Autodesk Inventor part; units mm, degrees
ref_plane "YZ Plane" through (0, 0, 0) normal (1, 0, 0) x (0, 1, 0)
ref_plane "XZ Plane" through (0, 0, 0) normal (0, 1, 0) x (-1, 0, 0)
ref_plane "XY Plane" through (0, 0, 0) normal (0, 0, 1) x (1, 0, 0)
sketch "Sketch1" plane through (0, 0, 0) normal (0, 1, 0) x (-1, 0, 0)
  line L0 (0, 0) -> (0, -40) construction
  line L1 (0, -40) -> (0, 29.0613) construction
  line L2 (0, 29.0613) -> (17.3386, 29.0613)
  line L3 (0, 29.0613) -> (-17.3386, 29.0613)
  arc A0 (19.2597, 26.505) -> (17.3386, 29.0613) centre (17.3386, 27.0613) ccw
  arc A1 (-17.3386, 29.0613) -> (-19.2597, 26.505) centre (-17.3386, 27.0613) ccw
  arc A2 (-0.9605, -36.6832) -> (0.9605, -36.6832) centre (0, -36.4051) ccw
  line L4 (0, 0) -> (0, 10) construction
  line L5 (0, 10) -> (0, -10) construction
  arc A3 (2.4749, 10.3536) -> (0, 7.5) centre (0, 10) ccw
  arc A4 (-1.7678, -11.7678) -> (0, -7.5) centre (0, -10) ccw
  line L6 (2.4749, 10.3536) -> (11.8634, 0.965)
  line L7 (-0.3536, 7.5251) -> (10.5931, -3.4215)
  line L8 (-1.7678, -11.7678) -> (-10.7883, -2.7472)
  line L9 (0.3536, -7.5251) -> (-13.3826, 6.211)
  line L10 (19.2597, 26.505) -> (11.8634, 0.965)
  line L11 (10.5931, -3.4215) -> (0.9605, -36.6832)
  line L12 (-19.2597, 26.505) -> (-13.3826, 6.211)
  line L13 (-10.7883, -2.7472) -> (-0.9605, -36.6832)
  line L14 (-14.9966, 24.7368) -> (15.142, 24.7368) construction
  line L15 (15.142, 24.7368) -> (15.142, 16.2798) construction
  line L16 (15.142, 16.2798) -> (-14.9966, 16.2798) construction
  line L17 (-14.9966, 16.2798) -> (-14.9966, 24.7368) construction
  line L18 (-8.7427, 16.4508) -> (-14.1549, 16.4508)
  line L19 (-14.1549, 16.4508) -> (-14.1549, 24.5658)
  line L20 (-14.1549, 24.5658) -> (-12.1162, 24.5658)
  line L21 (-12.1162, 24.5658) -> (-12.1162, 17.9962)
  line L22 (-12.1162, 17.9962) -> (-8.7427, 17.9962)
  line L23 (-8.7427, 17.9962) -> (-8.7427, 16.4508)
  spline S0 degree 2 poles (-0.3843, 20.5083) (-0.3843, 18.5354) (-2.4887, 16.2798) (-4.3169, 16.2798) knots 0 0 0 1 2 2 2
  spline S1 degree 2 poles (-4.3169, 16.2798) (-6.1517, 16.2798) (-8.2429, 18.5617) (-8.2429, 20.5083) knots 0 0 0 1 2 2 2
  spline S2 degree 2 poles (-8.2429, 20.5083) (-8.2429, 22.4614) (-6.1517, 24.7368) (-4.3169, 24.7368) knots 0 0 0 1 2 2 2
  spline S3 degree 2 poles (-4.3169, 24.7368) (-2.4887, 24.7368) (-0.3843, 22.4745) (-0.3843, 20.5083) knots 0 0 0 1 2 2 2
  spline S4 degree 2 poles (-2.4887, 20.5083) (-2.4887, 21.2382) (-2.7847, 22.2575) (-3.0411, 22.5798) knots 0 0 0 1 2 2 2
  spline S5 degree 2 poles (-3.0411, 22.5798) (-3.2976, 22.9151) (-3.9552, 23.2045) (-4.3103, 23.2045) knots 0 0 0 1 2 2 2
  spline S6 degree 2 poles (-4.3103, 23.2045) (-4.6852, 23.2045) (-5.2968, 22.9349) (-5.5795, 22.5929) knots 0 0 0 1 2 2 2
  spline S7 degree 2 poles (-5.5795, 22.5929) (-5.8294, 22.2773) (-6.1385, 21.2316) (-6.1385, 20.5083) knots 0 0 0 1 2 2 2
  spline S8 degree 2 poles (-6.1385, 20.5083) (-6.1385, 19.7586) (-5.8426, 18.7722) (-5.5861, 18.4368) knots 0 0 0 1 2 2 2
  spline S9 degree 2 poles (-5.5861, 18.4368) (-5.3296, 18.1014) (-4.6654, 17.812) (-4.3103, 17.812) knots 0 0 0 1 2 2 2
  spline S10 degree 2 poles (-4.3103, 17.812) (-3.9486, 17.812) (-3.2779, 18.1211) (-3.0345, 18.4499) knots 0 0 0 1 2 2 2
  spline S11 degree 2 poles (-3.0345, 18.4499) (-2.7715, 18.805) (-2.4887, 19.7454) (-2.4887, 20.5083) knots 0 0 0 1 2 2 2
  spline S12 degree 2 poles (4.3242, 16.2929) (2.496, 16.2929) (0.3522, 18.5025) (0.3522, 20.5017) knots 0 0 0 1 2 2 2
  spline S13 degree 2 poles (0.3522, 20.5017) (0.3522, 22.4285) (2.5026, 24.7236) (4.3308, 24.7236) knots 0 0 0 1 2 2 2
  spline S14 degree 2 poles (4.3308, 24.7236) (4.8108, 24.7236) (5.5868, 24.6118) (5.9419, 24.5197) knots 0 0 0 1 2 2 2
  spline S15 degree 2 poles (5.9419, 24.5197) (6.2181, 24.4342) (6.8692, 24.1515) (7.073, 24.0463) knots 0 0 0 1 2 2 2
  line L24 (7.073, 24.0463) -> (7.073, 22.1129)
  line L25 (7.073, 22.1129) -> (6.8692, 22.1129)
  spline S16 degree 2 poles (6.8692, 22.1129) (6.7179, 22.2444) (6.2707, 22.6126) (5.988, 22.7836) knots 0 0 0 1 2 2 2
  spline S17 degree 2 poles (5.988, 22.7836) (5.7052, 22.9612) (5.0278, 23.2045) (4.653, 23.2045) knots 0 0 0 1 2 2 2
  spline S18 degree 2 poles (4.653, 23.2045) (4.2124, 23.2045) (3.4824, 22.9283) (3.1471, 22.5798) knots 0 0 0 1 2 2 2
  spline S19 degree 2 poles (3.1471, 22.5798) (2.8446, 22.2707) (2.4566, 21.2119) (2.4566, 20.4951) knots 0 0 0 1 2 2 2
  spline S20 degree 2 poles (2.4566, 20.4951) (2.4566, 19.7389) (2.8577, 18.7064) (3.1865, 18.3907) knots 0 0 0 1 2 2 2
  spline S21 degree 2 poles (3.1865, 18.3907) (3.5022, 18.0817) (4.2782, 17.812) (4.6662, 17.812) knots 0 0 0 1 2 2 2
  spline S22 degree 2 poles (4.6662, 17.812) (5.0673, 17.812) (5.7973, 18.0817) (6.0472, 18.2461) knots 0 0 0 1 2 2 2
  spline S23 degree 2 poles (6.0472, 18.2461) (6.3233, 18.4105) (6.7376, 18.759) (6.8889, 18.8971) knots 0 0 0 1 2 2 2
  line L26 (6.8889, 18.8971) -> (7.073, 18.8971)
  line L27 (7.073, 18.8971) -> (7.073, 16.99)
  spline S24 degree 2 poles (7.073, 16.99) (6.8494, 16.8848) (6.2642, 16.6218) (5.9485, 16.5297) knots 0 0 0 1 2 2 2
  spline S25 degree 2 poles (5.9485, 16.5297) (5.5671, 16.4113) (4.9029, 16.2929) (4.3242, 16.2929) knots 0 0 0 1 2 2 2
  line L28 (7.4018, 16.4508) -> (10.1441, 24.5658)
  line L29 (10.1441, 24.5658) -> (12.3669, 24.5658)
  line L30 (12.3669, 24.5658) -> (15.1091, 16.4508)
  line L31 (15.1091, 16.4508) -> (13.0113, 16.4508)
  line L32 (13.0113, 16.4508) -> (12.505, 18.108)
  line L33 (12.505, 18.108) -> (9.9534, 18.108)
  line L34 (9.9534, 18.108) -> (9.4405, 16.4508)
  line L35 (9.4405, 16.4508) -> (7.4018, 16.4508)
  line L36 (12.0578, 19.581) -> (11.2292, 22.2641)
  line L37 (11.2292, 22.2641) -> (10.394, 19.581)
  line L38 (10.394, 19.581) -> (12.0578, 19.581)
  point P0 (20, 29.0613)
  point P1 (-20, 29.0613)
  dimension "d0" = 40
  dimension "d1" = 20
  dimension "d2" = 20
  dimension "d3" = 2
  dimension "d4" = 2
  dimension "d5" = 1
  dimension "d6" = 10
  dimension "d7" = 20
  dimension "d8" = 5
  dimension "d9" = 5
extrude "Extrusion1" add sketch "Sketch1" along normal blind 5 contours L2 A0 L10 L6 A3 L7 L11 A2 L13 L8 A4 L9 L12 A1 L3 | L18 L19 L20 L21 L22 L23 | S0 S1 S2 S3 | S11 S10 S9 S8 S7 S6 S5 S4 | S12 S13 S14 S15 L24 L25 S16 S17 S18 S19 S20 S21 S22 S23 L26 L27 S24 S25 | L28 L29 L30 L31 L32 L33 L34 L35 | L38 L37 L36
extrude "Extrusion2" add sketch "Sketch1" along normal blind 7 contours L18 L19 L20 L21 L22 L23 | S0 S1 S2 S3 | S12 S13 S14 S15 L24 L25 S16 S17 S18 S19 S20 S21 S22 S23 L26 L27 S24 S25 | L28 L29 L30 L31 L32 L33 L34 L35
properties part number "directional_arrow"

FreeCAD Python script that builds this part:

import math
import FreeCAD as App
import Part
import Sketcher
Q = App.Units.Quantity


def add_polygon(sketch, points):
    """Adds a closed chain of lines whose ends are joined by coincident constraints."""
    first, n = sketch.GeometryCount, len(points)
    for a, b in zip(points, points[1:] + points[:1]):
        sketch.addGeometry(Part.LineSegment(App.Vector(*a, 0), App.Vector(*b, 0)), False)
    for i in range(n):
        sketch.addConstraint(Sketcher.Constraint("Coincident", first + i, 2, first + (i + 1) % n, 1))

doc = App.newDocument("Part")
params = doc.addObject("Spreadsheet::Sheet", "Params")
for row, (alias, value) in enumerate([
    ("sketch1_radius", "2 mm"),
    ("sketch1_radius2", "1 mm"),
    ("sketch1_radius3", "2.5 mm"),
    ("pad1_length", "5 mm"),
    ("sketch2_length", "2.81 mm"),
    ("pad2_length", "7 mm"),
], start=1):
    params.set(f"A{row}", alias)
    params.set(f"B{row}", "=" + value)
    params.setAlias(f"B{row}", alias)

body = doc.addObject("PartDesign::Body", "Body")

# Sketch on XZ plane
sketch1 = doc.addObject("Sketcher::SketchObject", "Sketch")
body.addObject(sketch1)
sketch1.AttachmentSupport = (doc.XZ_Plane, [""])
sketch1.MapMode = "FlatFace"
sketch1.addGeometry(Part.LineSegment(App.Vector(-17.3386, 29.0613, 0), App.Vector(17.3386, 29.0613, 0)), False)
sketch1.addGeometry(Part.ArcOfCircle(Part.Circle(App.Vector(17.3386, 27.0613, 0), App.Vector(0, 0, 1), 2), math.radians(-16.149625), math.radians(90)), False)
sketch1.addGeometry(Part.LineSegment(App.Vector(19.2597, 26.505, 0), App.Vector(13.3826, 6.211, 0)), False)
sketch1.addGeometry(Part.LineSegment(App.Vector(13.3826, 6.211, 0), App.Vector(-0.3536, -7.5251, 0)), False)
sketch1.addGeometry(Part.ArcOfCircle(Part.Circle(App.Vector(0, -10, 0), App.Vector(0, 0, 1), 2.500047), math.radians(98.131075), math.radians(315)), False)
sketch1.addGeometry(Part.LineSegment(App.Vector(1.7678, -11.7678, 0), App.Vector(10.7883, -2.7472, 0)), False)
sketch1.addGeometry(Part.LineSegment(App.Vector(10.7883, -2.7472, 0), App.Vector(0.9605, -36.6832, 0)), False)
sketch1.addGeometry(Part.ArcOfCircle(Part.Circle(App.Vector(0, -36.4051, 0), App.Vector(0, 0, 1), 0.99995), math.radians(-163.85233), math.radians(-16.14767)), False)
sketch1.addGeometry(Part.LineSegment(App.Vector(-0.9605, -36.6832, 0), App.Vector(-10.5931, -3.4215, 0)), False)
sketch1.addGeometry(Part.LineSegment(App.Vector(-10.5931, -3.4215, 0), App.Vector(0.3536, 7.5251, 0)), False)
sketch1.addGeometry(Part.ArcOfCircle(Part.Circle(App.Vector(0, 10, 0), App.Vector(0, 0, 1), 2.500033), math.radians(-81.868925), math.radians(171.868925)), False)
sketch1.addGeometry(Part.LineSegment(App.Vector(-2.4749, 10.3536, 0), App.Vector(-11.8634, 0.965, 0)), False)
sketch1.addGeometry(Part.LineSegment(App.Vector(-11.8634, 0.965, 0), App.Vector(-19.2597, 26.505, 0)), False)
sketch1.addGeometry(Part.ArcOfCircle(Part.Circle(App.Vector(-17.3386, 27.0613, 0), App.Vector(0, 0, 1), 2.000024), math.radians(90), math.radians(196.149625)), False)
sketch1.addConstraint(Sketcher.Constraint("Tangent", 0, 2, 1, 2))
sketch1.addConstraint(Sketcher.Constraint("Tangent", 1, 1, 2, 1))
sketch1.addConstraint(Sketcher.Constraint("Coincident", 2, 2, 3, 1))
sketch1.addConstraint(Sketcher.Constraint("Coincident", 3, 2, 4, 1))
sketch1.addConstraint(Sketcher.Constraint("Tangent", 4, 2, 5, 1))
sketch1.addConstraint(Sketcher.Constraint("Coincident", 5, 2, 6, 1))
sketch1.addConstraint(Sketcher.Constraint("Tangent", 6, 2, 7, 2))
sketch1.addConstraint(Sketcher.Constraint("Tangent", 7, 1, 8, 1))
sketch1.addConstraint(Sketcher.Constraint("Coincident", 8, 2, 9, 1))
sketch1.addConstraint(Sketcher.Constraint("Coincident", 9, 2, 10, 1))
sketch1.addConstraint(Sketcher.Constraint("Coincident", 10, 2, 11, 1))
sketch1.addConstraint(Sketcher.Constraint("Coincident", 11, 2, 12, 1))
sketch1.addConstraint(Sketcher.Constraint("Tangent", 12, 2, 13, 2))
sketch1.addConstraint(Sketcher.Constraint("Tangent", 13, 1, 0, 1))
sketch1.addConstraint(Sketcher.Constraint("Horizontal", 0))
sketch1.addConstraint(Sketcher.Constraint("Equal", 4, 10))
sketch1.addConstraint(Sketcher.Constraint("Equal", 1, 13))
sketch1.addConstraint(Sketcher.Constraint("Symmetric", 4, 3, 10, 3, -1, 1))
sketch1.addConstraint(Sketcher.Constraint("Symmetric", 6, 2, 7, 1, -2))
sketch1.addConstraint(Sketcher.Constraint("Symmetric", 1, 1, 12, 2, -2))
sketch1.addConstraint(Sketcher.Constraint("PointOnObject", 4, 3, -2))
sketch1.addConstraint(Sketcher.Constraint("Parallel", 3, 5))
sketch1.addConstraint(Sketcher.Constraint("Parallel", 2, 6))
sketch1.addConstraint(Sketcher.Constraint("Parallel", 5, 9))
sketch1.addConstraint(Sketcher.Constraint("Parallel", 9, 11))
sketch1.addConstraint(Sketcher.Constraint("Radius", 1, Q("2 mm")))
sketch1.addConstraint(Sketcher.Constraint("Radius", 7, Q("1 mm")))
sketch1.addConstraint(Sketcher.Constraint("Radius", 4, Q("2.5 mm")))
sketch1.addConstraint(Sketcher.Constraint("DistanceY", 4, 3, -1, 1, Q("10 mm")))
sketch1.addConstraint(Sketcher.Constraint("Angle", 3, Q("-135.0002 deg")))
sketch1.addConstraint(Sketcher.Constraint("Angle", 2, Q("-106.151 deg")))
sketch1.addConstraint(Sketcher.Constraint("DistanceY", 7, 3, 3, 2, Q("28.88 mm")))
sketch1.addConstraint(Sketcher.Constraint("DistanceY", 11, 2, 9, 2, Q("6.56 mm")))
sketch1.addConstraint(Sketcher.Constraint("DistanceY", 3, 2, 11, 2, Q("8.49 mm")))
sketch1.addConstraint(Sketcher.Constraint("DistanceY", 11, 2, 12, 2, Q("25.54 mm")))
sketch1.addConstraint(Sketcher.Constraint("Distance", 5, Q("12.757 mm")))
sketch1.addConstraint(Sketcher.Constraint("DistanceX", 0, 1, 0, 2, Q("34.6772 mm")))
sketch1.setExpression("Constraints[25]", "Params.sketch1_radius")
sketch1.setExpression("Constraints[26]", "Params.sketch1_radius2")
sketch1.setExpression("Constraints[27]", "Params.sketch1_radius3")
pad1 = doc.addObject("PartDesign::Pad", "Pad")
body.addObject(pad1)
pad1.Profile = sketch1
pad1.setExpression("Length", "Params.pad1_length")
pad1.Reversed = True

# Sketch on XZ plane
sketch2 = doc.addObject("Sketcher::SketchObject", "Sketch001")
body.addObject(sketch2)
sketch2.AttachmentSupport = (doc.XZ_Plane, [""])
sketch2.MapMode = "FlatFace"
add_polygon(sketch2, [(14.1549, 16.4508), (8.7427, 16.4508), (8.7427, 17.9962), (12.1162, 17.9962), (12.1162, 24.5658), (14.1549, 24.5658)])  # lines 0-5
sketch2.addGeometry(Part.BSplineCurve([App.Vector(0.3843, 20.5083, 0), App.Vector(0.3843, 18.5354, 0), App.Vector(2.4887, 16.2798, 0), App.Vector(4.3169, 16.2798, 0)], [3, 1, 3], [0, 1, 2], False, 2, [1, 1, 1, 1], False), False)  # 6
sketch2.addGeometry(Part.BSplineCurve([App.Vector(4.3169, 24.7368, 0), App.Vector(2.4887, 24.7368, 0), App.Vector(0.3843, 22.4745, 0), App.Vector(0.3843, 20.5083, 0)], [3, 1, 3], [0, 1, 2], False, 2, [1, 1, 1, 1], False), False)  # 7
sketch2.addGeometry(Part.BSplineCurve([App.Vector(8.2429, 20.5083, 0), App.Vector(8.2429, 22.4614, 0), App.Vector(6.1517, 24.7368, 0), App.Vector(4.3169, 24.7368, 0)], [3, 1, 3], [0, 1, 2], False, 2, [1, 1, 1, 1], False), False)  # 8
sketch2.addGeometry(Part.BSplineCurve([App.Vector(4.3169, 16.2798, 0), App.Vector(6.1517, 16.2798, 0), App.Vector(8.2429, 18.5617, 0), App.Vector(8.2429, 20.5083, 0)], [3, 1, 3], [0, 1, 2], False, 2, [1, 1, 1, 1], False), False)  # 9
sketch2.addGeometry(Part.BSplineCurve([App.Vector(2.4887, 20.5083, 0), App.Vector(2.4887, 21.2382, 0), App.Vector(2.7847, 22.2575, 0), App.Vector(3.0411, 22.5798, 0)], [3, 1, 3], [0, 1, 2], False, 2, [1, 1, 1, 1], False), False)  # 10
sketch2.addGeometry(Part.BSplineCurve([App.Vector(3.0345, 18.4499, 0), App.Vector(2.7715, 18.805, 0), App.Vector(2.4887, 19.7454, 0), App.Vector(2.4887, 20.5083, 0)], [3, 1, 3], [0, 1, 2], False, 2, [1, 1, 1, 1], False), False)  # 11
sketch2.addGeometry(Part.BSplineCurve([App.Vector(4.3103, 17.812, 0), App.Vector(3.9486, 17.812, 0), App.Vector(3.2779, 18.1211, 0), App.Vector(3.0345, 18.4499, 0)], [3, 1, 3], [0, 1, 2], False, 2, [1, 1, 1, 1], False), False)  # 12
sketch2.addGeometry(Part.BSplineCurve([App.Vector(5.5861, 18.4368, 0), App.Vector(5.3296, 18.1014, 0), App.Vector(4.6654, 17.812, 0), App.Vector(4.3103, 17.812, 0)], [3, 1, 3], [0, 1, 2], False, 2, [1, 1, 1, 1], False), False)  # 13
sketch2.addGeometry(Part.BSplineCurve([App.Vector(6.1385, 20.5083, 0), App.Vector(6.1385, 19.7586, 0), App.Vector(5.8426, 18.7722, 0), App.Vector(5.5861, 18.4368, 0)], [3, 1, 3], [0, 1, 2], False, 2, [1, 1, 1, 1], False), False)  # 14
sketch2.addGeometry(Part.BSplineCurve([App.Vector(5.5795, 22.5929, 0), App.Vector(5.8294, 22.2773, 0), App.Vector(6.1385, 21.2316, 0), App.Vector(6.1385, 20.5083, 0)], [3, 1, 3], [0, 1, 2], False, 2, [1, 1, 1, 1], False), False)  # 15
sketch2.addGeometry(Part.BSplineCurve([App.Vector(4.3103, 23.2045, 0), App.Vector(4.6852, 23.2045, 0), App.Vector(5.2968, 22.9349, 0), App.Vector(5.5795, 22.5929, 0)], [3, 1, 3], [0, 1, 2], False, 2, [1, 1, 1, 1], False), False)  # 16
sketch2.addGeometry(Part.BSplineCurve([App.Vector(3.0411, 22.5798, 0), App.Vector(3.2976, 22.9151, 0), App.Vector(3.9552, 23.2045, 0), App.Vector(4.3103, 23.2045, 0)], [3, 1, 3], [0, 1, 2], False, 2, [1, 1, 1, 1], False), False)  # 17
sketch2.addGeometry(Part.BSplineCurve([App.Vector(-4.3242, 16.2929, 0), App.Vector(-2.496, 16.2929, 0), App.Vector(-0.3522, 18.5025, 0), App.Vector(-0.3522, 20.5017, 0)], [3, 1, 3], [0, 1, 2], False, 2, [1, 1, 1, 1], False), False)  # 18
sketch2.addGeometry(Part.BSplineCurve([App.Vector(-5.9485, 16.5297, 0), App.Vector(-5.5671, 16.4113, 0), App.Vector(-4.9029, 16.2929, 0), App.Vector(-4.3242, 16.2929, 0)], [3, 1, 3], [0, 1, 2], False, 2, [1, 1, 1, 1], False), False)  # 19
sketch2.addGeometry(Part.BSplineCurve([App.Vector(-7.073, 16.99, 0), App.Vector(-6.8494, 16.8848, 0), App.Vector(-6.2642, 16.6218, 0), App.Vector(-5.9485, 16.5297, 0)], [3, 1, 3], [0, 1, 2], False, 2, [1, 1, 1, 1], False), False)  # 20
sketch2.addGeometry(Part.LineSegment(App.Vector(-7.073, 16.99, 0), App.Vector(-7.073, 18.8971, 0)), False)  # 21
sketch2.addGeometry(Part.LineSegment(App.Vector(-7.073, 18.8971, 0), App.Vector(-6.8889, 18.8971, 0)), False)  # 22
sketch2.addGeometry(Part.BSplineCurve([App.Vector(-6.0472, 18.2461, 0), App.Vector(-6.3233, 18.4105, 0), App.Vector(-6.7376, 18.759, 0), App.Vector(-6.8889, 18.8971, 0)], [3, 1, 3], [0, 1, 2], False, 2, [1, 1, 1, 1], False), False)  # 23
sketch2.addGeometry(Part.BSplineCurve([App.Vector(-4.6662, 17.812, 0), App.Vector(-5.0673, 17.812, 0), App.Vector(-5.7973, 18.0817, 0), App.Vector(-6.0472, 18.2461, 0)], [3, 1, 3], [0, 1, 2], False, 2, [1, 1, 1, 1], False), False)  # 24
sketch2.addGeometry(Part.BSplineCurve([App.Vector(-3.1865, 18.3907, 0), App.Vector(-3.5022, 18.0817, 0), App.Vector(-4.2782, 17.812, 0), App.Vector(-4.6662, 17.812, 0)], [3, 1, 3], [0, 1, 2], False, 2, [1, 1, 1, 1], False), False)  # 25
sketch2.addGeometry(Part.BSplineCurve([App.Vector(-2.4566, 20.4951, 0), App.Vector(-2.4566, 19.7389, 0), App.Vector(-2.8577, 18.7064, 0), App.Vector(-3.1865, 18.3907, 0)], [3, 1, 3], [0, 1, 2], False, 2, [1, 1, 1, 1], False), False)  # 26
sketch2.addGeometry(Part.BSplineCurve([App.Vector(-3.1471, 22.5798, 0), App.Vector(-2.8446, 22.2707, 0), App.Vector(-2.4566, 21.2119, 0), App.Vector(-2.4566, 20.4951, 0)], [3, 1, 3], [0, 1, 2], False, 2, [1, 1, 1, 1], False), False)  # 27
sketch2.addGeometry(Part.BSplineCurve([App.Vector(-4.653, 23.2045, 0), App.Vector(-4.2124, 23.2045, 0), App.Vector(-3.4824, 22.9283, 0), App.Vector(-3.1471, 22.5798, 0)], [3, 1, 3], [0, 1, 2], False, 2, [1, 1, 1, 1], False), False)  # 28
sketch2.addGeometry(Part.BSplineCurve([App.Vector(-5.988, 22.7836, 0), App.Vector(-5.7052, 22.9612, 0), App.Vector(-5.0278, 23.2045, 0), App.Vector(-4.653, 23.2045, 0)], [3, 1, 3], [0, 1, 2], False, 2, [1, 1, 1, 1], False), False)  # 29
sketch2.addGeometry(Part.BSplineCurve([App.Vector(-6.8692, 22.1129, 0), App.Vector(-6.7179, 22.2444, 0), App.Vector(-6.2707, 22.6126, 0), App.Vector(-5.988, 22.7836, 0)], [3, 1, 3], [0, 1, 2], False, 2, [1, 1, 1, 1], False), False)  # 30
sketch2.addGeometry(Part.LineSegment(App.Vector(-6.8692, 22.1129, 0), App.Vector(-7.073, 22.1129, 0)), False)  # 31
sketch2.addGeometry(Part.LineSegment(App.Vector(-7.073, 22.1129, 0), App.Vector(-7.073, 24.0463, 0)), False)  # 32
sketch2.addGeometry(Part.BSplineCurve([App.Vector(-5.9419, 24.5197, 0), App.Vector(-6.2181, 24.4342, 0), App.Vector(-6.8692, 24.1515, 0), App.Vector(-7.073, 24.0463, 0)], [3, 1, 3], [0, 1, 2], False, 2, [1, 1, 1, 1], False), False)  # 33
sketch2.addGeometry(Part.BSplineCurve([App.Vector(-4.3308, 24.7236, 0), App.Vector(-4.8108, 24.7236, 0), App.Vector(-5.5868, 24.6118, 0), App.Vector(-5.9419, 24.5197, 0)], [3, 1, 3], [0, 1, 2], False, 2, [1, 1, 1, 1], False), False)  # 34
sketch2.addGeometry(Part.BSplineCurve([App.Vector(-0.3522, 20.5017, 0), App.Vector(-0.3522, 22.4285, 0), App.Vector(-2.5026, 24.7236, 0), App.Vector(-4.3308, 24.7236, 0)], [3, 1, 3], [0, 1, 2], False, 2, [1, 1, 1, 1], False), False)  # 35
add_polygon(sketch2, [(-10.1441, 24.5658), (-7.4018, 16.4508), (-9.4405, 16.4508), (-9.9534, 18.108), (-12.505, 18.108), (-13.0113, 16.4508), (-15.1091, 16.4508), (-12.3669, 24.5658)])  # lines 36-43
add_polygon(sketch2, [(-11.2292, 22.2641), (-12.0578, 19.581), (-10.394, 19.581)])  # lines 44-46
sketch2.addConstraint(Sketcher.Constraint("Block", 6))
sketch2.addConstraint(Sketcher.Constraint("Block", 7))
sketch2.addConstraint(Sketcher.Constraint("Block", 8))
sketch2.addConstraint(Sketcher.Constraint("Block", 9))
sketch2.addConstraint(Sketcher.Constraint("Block", 10))
sketch2.addConstraint(Sketcher.Constraint("Block", 11))
sketch2.addConstraint(Sketcher.Constraint("Block", 12))
sketch2.addConstraint(Sketcher.Constraint("Block", 13))
sketch2.addConstraint(Sketcher.Constraint("Block", 14))
sketch2.addConstraint(Sketcher.Constraint("Block", 15))
sketch2.addConstraint(Sketcher.Constraint("Block", 16))
sketch2.addConstraint(Sketcher.Constraint("Block", 17))
sketch2.addConstraint(Sketcher.Constraint("Block", 18))
sketch2.addConstraint(Sketcher.Constraint("Block", 19))
sketch2.addConstraint(Sketcher.Constraint("Block", 20))
sketch2.addConstraint(Sketcher.Constraint("Block", 23))
sketch2.addConstraint(Sketcher.Constraint("Block", 24))
sketch2.addConstraint(Sketcher.Constraint("Block", 25))
sketch2.addConstraint(Sketcher.Constraint("Block", 26))
sketch2.addConstraint(Sketcher.Constraint("Block", 27))
sketch2.addConstraint(Sketcher.Constraint("Block", 28))
sketch2.addConstraint(Sketcher.Constraint("Block", 29))
sketch2.addConstraint(Sketcher.Constraint("Block", 30))
sketch2.addConstraint(Sketcher.Constraint("Block", 33))
sketch2.addConstraint(Sketcher.Constraint("Block", 34))
sketch2.addConstraint(Sketcher.Constraint("Block", 35))
sketch2.addConstraint(Sketcher.Constraint("Coincident", 20, 1, 21, 1))
sketch2.addConstraint(Sketcher.Constraint("Coincident", 21, 2, 22, 1))
sketch2.addConstraint(Sketcher.Constraint("Coincident", 22, 2, 23, 2))
sketch2.addConstraint(Sketcher.Constraint("Coincident", 30, 1, 31, 1))
sketch2.addConstraint(Sketcher.Constraint("Coincident", 31, 2, 32, 1))
sketch2.addConstraint(Sketcher.Constraint("Coincident", 32, 2, 33, 2))
sketch2.addConstraint(Sketcher.Constraint("Horizontal", 0))
sketch2.addConstraint(Sketcher.Constraint("Vertical", 1))
sketch2.addConstraint(Sketcher.Constraint("Horizontal", 2))
sketch2.addConstraint(Sketcher.Constraint("Vertical", 3))
sketch2.addConstraint(Sketcher.Constraint("Horizontal", 4))
sketch2.addConstraint(Sketcher.Constraint("Vertical", 5))
sketch2.addConstraint(Sketcher.Constraint("Vertical", 21))
sketch2.addConstraint(Sketcher.Constraint("Horizontal", 22))
sketch2.addConstraint(Sketcher.Constraint("Horizontal", 31))
sketch2.addConstraint(Sketcher.Constraint("Vertical", 32))
sketch2.addConstraint(Sketcher.Constraint("Horizontal", 37))
sketch2.addConstraint(Sketcher.Constraint("Horizontal", 39))
sketch2.addConstraint(Sketcher.Constraint("Horizontal", 41))
sketch2.addConstraint(Sketcher.Constraint("Horizontal", 43))
sketch2.addConstraint(Sketcher.Constraint("Horizontal", 45))
sketch2.addConstraint(Sketcher.Constraint("Horizontal", 5, 2, 36, 2))
sketch2.addConstraint(Sketcher.Constraint("Horizontal", 37, 2, 40, 2))
sketch2.addConstraint(Sketcher.Constraint("Horizontal", 4, 2, 42, 2))
sketch2.addConstraint(Sketcher.Constraint("Equal", 4, 37))
sketch2.addConstraint(Sketcher.Constraint("Equal", 36, 42))
sketch2.addConstraint(Sketcher.Constraint("Angle", 42, Q("71.329 deg")))
sketch2.addConstraint(Sketcher.Constraint("Angle", 46, Q("107.2904 deg")))
sketch2.addConstraint(Sketcher.Constraint("Distance", 46, Q("2.81 mm")))
sketch2.addConstraint(Sketcher.Constraint("DistanceY", 5, 2, 5, 1, Q("8.115 mm")))
sketch2.addConstraint(Sketcher.Constraint("DistanceY", 1, 2, 32, 2, Q("6.05 mm")))
sketch2.addConstraint(Sketcher.Constraint("DistanceX", 0, 2, 0, 1, Q("5.4122 mm")))
sketch2.addConstraint(Sketcher.Constraint("DistanceX", 2, 1, 2, 2, Q("3.3735 mm")))
sketch2.addConstraint(Sketcher.Constraint("DistanceX", 39, 2, 39, 1, Q("2.5516 mm")))
sketch2.addConstraint(Sketcher.Constraint("DistanceX", 41, 2, 41, 1, Q("2.0978 mm")))
sketch2.addConstraint(Sketcher.Constraint("DistanceX", 43, 1, 43, 2, Q("2.2228 mm")))
sketch2.addConstraint(Sketcher.Constraint("DistanceX", 45, 1, 45, 2, Q("1.6638 mm")))
sketch2.addConstraint(Sketcher.Constraint("DistanceY", 1, 1, 1, 2, Q("1.5454 mm")))
sketch2.addConstraint(Sketcher.Constraint("DistanceX", -1, 1, 4, 2, Q("14.155 mm")))
sketch2.addConstraint(Sketcher.Constraint("DistanceY", -1, 1, 38, 2, Q("18.108 mm")))
sketch2.addConstraint(Sketcher.Constraint("DistanceX", 39, 2, -1, 1, Q("12.505 mm")))
sketch2.addConstraint(Sketcher.Constraint("DistanceX", 41, 2, -1, 1, Q("15.109 mm")))
sketch2.addConstraint(Sketcher.Constraint("DistanceY", -1, 1, 44, 2, Q("19.581 mm")))
sketch2.addConstraint(Sketcher.Constraint("DistanceX", 45, 2, -1, 1, Q("10.394 mm")))
sketch2.setExpression("Constraints[71]", "Params.sketch2_length")
pad2 = doc.addObject("PartDesign::Pad", "Pad001")
body.addObject(pad2)
pad2.Profile = sketch2
pad2.setExpression("Length", "Params.pad2_length")
pad2.Reversed = True

doc.recompute()
